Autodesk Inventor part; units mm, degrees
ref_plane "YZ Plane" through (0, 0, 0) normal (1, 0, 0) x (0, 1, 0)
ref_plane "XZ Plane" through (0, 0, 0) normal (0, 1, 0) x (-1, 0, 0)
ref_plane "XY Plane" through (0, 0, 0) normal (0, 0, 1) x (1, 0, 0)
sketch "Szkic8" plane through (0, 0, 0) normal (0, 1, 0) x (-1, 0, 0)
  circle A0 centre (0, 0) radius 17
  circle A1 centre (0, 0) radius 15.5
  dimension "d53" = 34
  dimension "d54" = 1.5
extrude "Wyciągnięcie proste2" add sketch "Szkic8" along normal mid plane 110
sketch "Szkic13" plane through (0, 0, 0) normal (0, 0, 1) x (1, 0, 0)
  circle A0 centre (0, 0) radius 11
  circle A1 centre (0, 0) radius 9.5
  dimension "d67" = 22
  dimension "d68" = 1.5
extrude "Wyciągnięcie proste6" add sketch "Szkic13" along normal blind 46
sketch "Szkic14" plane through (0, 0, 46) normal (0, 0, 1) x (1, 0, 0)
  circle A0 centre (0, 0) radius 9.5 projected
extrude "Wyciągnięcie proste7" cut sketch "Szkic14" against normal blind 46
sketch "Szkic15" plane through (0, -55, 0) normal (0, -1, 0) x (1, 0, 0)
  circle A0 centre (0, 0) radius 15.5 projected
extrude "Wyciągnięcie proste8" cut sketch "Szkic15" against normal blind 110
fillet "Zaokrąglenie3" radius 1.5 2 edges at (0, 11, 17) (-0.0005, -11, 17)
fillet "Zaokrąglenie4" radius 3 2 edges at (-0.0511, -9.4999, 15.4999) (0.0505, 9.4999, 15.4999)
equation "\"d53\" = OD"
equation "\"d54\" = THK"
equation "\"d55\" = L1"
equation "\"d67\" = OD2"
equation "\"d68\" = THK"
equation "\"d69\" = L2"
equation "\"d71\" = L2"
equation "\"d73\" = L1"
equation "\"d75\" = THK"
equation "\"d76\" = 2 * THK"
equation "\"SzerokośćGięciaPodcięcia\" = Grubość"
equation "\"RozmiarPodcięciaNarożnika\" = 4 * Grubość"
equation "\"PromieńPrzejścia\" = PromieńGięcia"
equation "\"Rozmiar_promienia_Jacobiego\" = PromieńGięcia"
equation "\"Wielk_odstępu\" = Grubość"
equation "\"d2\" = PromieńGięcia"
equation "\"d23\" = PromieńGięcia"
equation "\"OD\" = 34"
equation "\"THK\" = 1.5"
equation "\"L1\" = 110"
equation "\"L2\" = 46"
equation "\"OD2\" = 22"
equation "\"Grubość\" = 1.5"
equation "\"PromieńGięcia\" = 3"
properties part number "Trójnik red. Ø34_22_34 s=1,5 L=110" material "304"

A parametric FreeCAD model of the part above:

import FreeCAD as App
import Part
import Sketcher

V = App.Vector
Q = App.Units.Quantity


def edges_at(feature, points):
    """Names of the edges that pass closest to the given points."""
    edges = feature.Shape.Edges
    near = lambda p: min(range(len(edges)), key=lambda i: edges[i].distToShape(Part.Vertex(*p))[0])
    return sorted({f"Edge{near(p) + 1}" for p in points})

doc = App.newDocument("Part")
params = doc.addObject("Spreadsheet::Sheet", "Params")
for row, (alias, value) in enumerate([
    ("sketch1_diameter", "34 mm"),
    ("sketch1_diameter2", "31 mm"),
    ("pad1_length", "110 mm"),
    ("sketch2_diameter", "22 mm"),
    ("sketch2_diameter2", "19 mm"),
    ("pad2_length", "46 mm"),
    ("sketch3_diameter", "19 mm"),
    ("pocket1_length", "46 mm"),
    ("sketch4_diameter", "31 mm"),
    ("pocket2_length", "110 mm"),
    ("fillet_radius", "1.5 mm"),
    ("fillet2_radius", "3 mm"),
], start=1):
    params.set(f"A{row}", alias)
    params.set(f"B{row}", "=" + value)
    params.setAlias(f"B{row}", alias)

body = doc.addObject("PartDesign::Body", "Body")

sketch1 = body.newObject("Sketcher::SketchObject", "Sketch")
sketch1.AttachmentSupport = (doc.getObject("XZ_Plane"), [""])
sketch1.MapMode = "FlatFace"
sketch1.addGeometry([
    Part.Circle(V(0, 0, 0), V(0, 0, 1), 17),
    Part.Circle(V(0, 0, 0), V(0, 0, 1), 16),
], False)
sketch1.addConstraint([
    Sketcher.Constraint("Coincident", 0, 3, -1, 1),
    Sketcher.Constraint("Coincident", 1, 3, -1, 1),
    Sketcher.Constraint("Diameter", 0, Q("34 mm")),
    Sketcher.Constraint("Diameter", 1, Q("31 mm")),
])
sketch1.setExpression("Constraints[2]", "Params.sketch1_diameter")
sketch1.setExpression("Constraints[3]", "Params.sketch1_diameter2")
pad1 = body.newObject("PartDesign::Pad", "Pad")
pad1.Profile = sketch1
pad1.setExpression("Length", "Params.pad1_length")
pad1.Midplane = True

sketch2 = body.newObject("Sketcher::SketchObject", "Sketch001")
sketch2.AttachmentSupport = (doc.getObject("XY_Plane"), [""])
sketch2.MapMode = "FlatFace"
sketch2.addGeometry([
    Part.Circle(V(0, 0, 0), V(0, 0, 1), 11),
    Part.Circle(V(0, 0, 0), V(0, 0, 1), 10),
], False)
sketch2.addConstraint([
    Sketcher.Constraint("Coincident", 0, 3, -1, 1),
    Sketcher.Constraint("Coincident", 1, 3, -1, 1),
    Sketcher.Constraint("Diameter", 0, Q("22 mm")),
    Sketcher.Constraint("Diameter", 1, Q("19 mm")),
])
sketch2.setExpression("Constraints[2]", "Params.sketch2_diameter")
sketch2.setExpression("Constraints[3]", "Params.sketch2_diameter2")
pad2 = body.newObject("PartDesign::Pad", "Pad001")
pad2.Profile = sketch2
pad2.setExpression("Length", "Params.pad2_length")

sketch3 = body.newObject("Sketcher::SketchObject", "Sketch002")
sketch3.AttachmentSupport = (doc.getObject("XY_Plane"), [""])
sketch3.MapMode = "FlatFace"
sketch3.AttachmentOffset = App.Placement(V(0, 0, 46), App.Rotation())
sketch3.addGeometry(Part.Circle(V(0, 0, 0), V(0, 0, 1), 10), False)
sketch3.addConstraint([
    Sketcher.Constraint("Coincident", 0, 3, -1, 1),
    Sketcher.Constraint("Diameter", 0, Q("19 mm")),
])
sketch3.setExpression("Constraints[1]", "Params.sketch3_diameter")
pocket1 = body.newObject("PartDesign::Pocket", "Pocket")
pocket1.Profile = sketch3
pocket1.setExpression("Length", "Params.pocket1_length")

sketch4 = body.newObject("Sketcher::SketchObject", "Sketch003")
sketch4.AttachmentSupport = (doc.getObject("XZ_Plane"), [""])
sketch4.MapMode = "FlatFace"
sketch4.AttachmentOffset = App.Placement(V(0, 0, 55), App.Rotation())
sketch4.addGeometry(Part.Circle(V(0, 0, 0), V(0, 0, 1), 16), False)
sketch4.addConstraint([
    Sketcher.Constraint("Coincident", 0, 3, -1, 1),
    Sketcher.Constraint("Diameter", 0, Q("31 mm")),
])
sketch4.setExpression("Constraints[1]", "Params.sketch4_diameter")
pocket2 = body.newObject("PartDesign::Pocket", "Pocket001")
pocket2.Profile = sketch4
pocket2.setExpression("Length", "Params.pocket2_length")
doc.recompute()

fillet = body.newObject("PartDesign::Fillet", "Fillet")
fillet.Base = (pocket2, edges_at(pocket2, [(0, 11, 17), (-0.001, -11, 17)]))
fillet.setExpression("Radius", "Params.fillet_radius")
doc.recompute()

fillet2 = body.newObject("PartDesign::Fillet", "Fillet001")
fillet2.Base = (fillet, edges_at(fillet, [(-0.051, -9.5, 15.5), (0.051, 9.5, 15.5)]))
fillet2.setExpression("Radius", "Params.fillet2_radius")

doc.recompute()
